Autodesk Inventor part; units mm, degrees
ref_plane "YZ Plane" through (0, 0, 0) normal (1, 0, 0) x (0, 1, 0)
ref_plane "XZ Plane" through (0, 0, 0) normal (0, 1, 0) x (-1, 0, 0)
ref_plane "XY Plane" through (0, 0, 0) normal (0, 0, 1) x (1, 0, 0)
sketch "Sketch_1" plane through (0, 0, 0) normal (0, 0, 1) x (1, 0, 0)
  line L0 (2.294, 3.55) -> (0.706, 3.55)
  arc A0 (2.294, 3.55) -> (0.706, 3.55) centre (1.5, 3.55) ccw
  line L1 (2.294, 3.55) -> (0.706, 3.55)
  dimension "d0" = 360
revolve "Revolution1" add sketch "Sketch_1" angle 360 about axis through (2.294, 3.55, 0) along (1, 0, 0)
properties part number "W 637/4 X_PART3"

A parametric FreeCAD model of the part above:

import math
import FreeCAD as App
import Part
import Sketcher

V = App.Vector

doc = App.newDocument("Part")
body = doc.addObject("PartDesign::Body", "Body")

sketch1 = doc.addObject("Sketcher::SketchObject", "Sketch")
body.addObject(sketch1)
sketch1.AttachmentSupport = (doc.XY_Plane, [""])
sketch1.MapMode = "FlatFace"
sketch1.addGeometry([
    Part.LineSegment(V(0.7, 3.5, 0), V(2.3, 3.5, 0)),
    Part.ArcOfCircle(Part.Circle(V(1.5, 3.5, 0), V(0, 0, 1), 0.8), math.radians(0), math.radians(180)),
], False)
sketch1.addGeometry(Part.LineSegment(V(0.7, 3.5, 0), V(2.3, 3.5, 0)), True)
sketch1.addConstraint([
    Sketcher.Constraint("Coincident", 0, 1, 1, 2),
    Sketcher.Constraint("Coincident", 1, 1, 0, 2),
    Sketcher.Constraint("Horizontal", 0),
    Sketcher.Constraint("Horizontal", 2),
    Sketcher.Constraint("Coincident", 2, 1, 0, 1),
    Sketcher.Constraint("Horizontal", 1, 3, 0, 1),
    Sketcher.Constraint("Equal", 0, 2),
    Sketcher.Constraint("Radius", 1, 0.794),
    Sketcher.Constraint("DistanceX", -1, 1, 1, 3, 1.5),
    Sketcher.Constraint("DistanceY", -1, 1, 1, 3, 3.55),
])
revolution = doc.addObject("PartDesign::Revolution", "Revolution")
body.addObject(revolution)
revolution.Profile = sketch1
revolution.ReferenceAxis = (sketch1, ["Axis0"])
revolution.Angle = 360

doc.recompute()
